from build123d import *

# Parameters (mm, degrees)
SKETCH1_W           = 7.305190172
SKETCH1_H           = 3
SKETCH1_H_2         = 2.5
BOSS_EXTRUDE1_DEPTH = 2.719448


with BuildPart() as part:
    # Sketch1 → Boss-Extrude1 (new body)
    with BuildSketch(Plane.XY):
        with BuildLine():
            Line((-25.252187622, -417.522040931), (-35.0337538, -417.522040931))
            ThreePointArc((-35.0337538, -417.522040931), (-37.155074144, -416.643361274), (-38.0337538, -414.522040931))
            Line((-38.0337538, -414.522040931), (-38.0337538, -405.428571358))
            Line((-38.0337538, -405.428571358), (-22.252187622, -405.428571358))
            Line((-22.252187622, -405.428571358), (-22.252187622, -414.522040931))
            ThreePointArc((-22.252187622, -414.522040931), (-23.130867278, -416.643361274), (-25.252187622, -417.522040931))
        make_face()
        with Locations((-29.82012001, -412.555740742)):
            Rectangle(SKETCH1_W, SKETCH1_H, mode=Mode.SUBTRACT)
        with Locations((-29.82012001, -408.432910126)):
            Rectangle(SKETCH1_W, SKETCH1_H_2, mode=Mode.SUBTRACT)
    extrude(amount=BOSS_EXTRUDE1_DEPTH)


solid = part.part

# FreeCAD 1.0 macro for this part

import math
import FreeCAD as App
import Part
import Sketcher
Q = App.Units.Quantity

doc = App.newDocument("Part")
params = doc.addObject("Spreadsheet::Sheet", "Params")
for row, (alias, value) in enumerate([
    ("sketch1_radius", "3 mm"),
    ("sketch1_height", "3 mm"),
    ("sketch1_height2", "2.5 mm"),
    ("pad1_length", "2.719448 mm"),
], start=1):
    params.set(f"A{row}", alias)
    params.set(f"B{row}", "=" + value)
    params.setAlias(f"B{row}", alias)

body = doc.addObject("PartDesign::Body", "Body")

sketch1 = body.newObject("Sketcher::SketchObject", "Sketch")
sketch1.AttachmentSupport = (doc.getObject("XY_Plane"), [""])
sketch1.MapMode = "FlatFace"
sketch1.addGeometry([
    Part.LineSegment(App.Vector(-35, -417.5, 0), App.Vector(-25.3, -417.5, 0)),
    Part.ArcOfCircle(Part.Circle(App.Vector(-25.3, -414.5, 0), App.Vector(0, 0, 1), 3), math.radians(-90), math.radians(0)),
    Part.LineSegment(App.Vector(-22.3, -414.5, 0), App.Vector(-22.3, -405.4, 0)),
    Part.LineSegment(App.Vector(-22.3, -405.4, 0), App.Vector(-38, -405.4, 0)),
    Part.LineSegment(App.Vector(-38, -405.4, 0), App.Vector(-38, -414.5, 0)),
    Part.ArcOfCircle(Part.Circle(App.Vector(-35, -414.5, 0), App.Vector(0, 0, 1), 3), math.radians(180), math.radians(270)),
    Part.LineSegment(App.Vector(-33.5, -414.1, 0), App.Vector(-33.5, -411.1, 0)),
    Part.LineSegment(App.Vector(-33.5, -411.1, 0), App.Vector(-26.2, -411.1, 0)),
    Part.LineSegment(App.Vector(-26.2, -411.1, 0), App.Vector(-26.2, -414.1, 0)),
    Part.LineSegment(App.Vector(-26.2, -414.1, 0), App.Vector(-33.5, -414.1, 0)),
    Part.LineSegment(App.Vector(-33.5, -409.7, 0), App.Vector(-33.5, -407.2, 0)),
    Part.LineSegment(App.Vector(-33.5, -407.2, 0), App.Vector(-26.2, -407.2, 0)),
    Part.LineSegment(App.Vector(-26.2, -407.2, 0), App.Vector(-26.2, -409.7, 0)),
    Part.LineSegment(App.Vector(-26.2, -409.7, 0), App.Vector(-33.5, -409.7, 0)),
], False)
sketch1.addConstraint([
    Sketcher.Constraint("Tangent", 0, 2, 1, 1),
    Sketcher.Constraint("Tangent", 1, 2, 2, 1),
    Sketcher.Constraint("Coincident", 2, 2, 3, 1),
    Sketcher.Constraint("Coincident", 3, 2, 4, 1),
    Sketcher.Constraint("Tangent", 4, 2, 5, 1),
    Sketcher.Constraint("Tangent", 5, 2, 0, 1),
    Sketcher.Constraint("Coincident", 6, 2, 7, 1),
    Sketcher.Constraint("Coincident", 7, 2, 8, 1),
    Sketcher.Constraint("Coincident", 8, 2, 9, 1),
    Sketcher.Constraint("Coincident", 9, 2, 6, 1),
    Sketcher.Constraint("Coincident", 10, 2, 11, 1),
    Sketcher.Constraint("Coincident", 11, 2, 12, 1),
    Sketcher.Constraint("Coincident", 12, 2, 13, 1),
    Sketcher.Constraint("Coincident", 13, 2, 10, 1),
    Sketcher.Constraint("Horizontal", 0),
    Sketcher.Constraint("Vertical", 2),
    Sketcher.Constraint("Horizontal", 3),
    Sketcher.Constraint("Vertical", 4),
    Sketcher.Constraint("Vertical", 6),
    Sketcher.Constraint("Horizontal", 7),
    Sketcher.Constraint("Vertical", 8),
    Sketcher.Constraint("Horizontal", 9),
    Sketcher.Constraint("Vertical", 10),
    Sketcher.Constraint("Horizontal", 11),
    Sketcher.Constraint("Vertical", 12),
    Sketcher.Constraint("Horizontal", 13),
    Sketcher.Constraint("Equal", 1, 5),
    Sketcher.Constraint("Vertical", 9, 2, 10, 2),
    Sketcher.Constraint("Vertical", 8, 2, 11, 2),
    Sketcher.Constraint("Radius", 1, Q("3 mm")),
    Sketcher.Constraint("DistanceY", 6, 1, 6, 2, Q("3 mm")),
    Sketcher.Constraint("DistanceY", 10, 1, 10, 2, Q("2.5 mm")),
    Sketcher.Constraint("DistanceX", 7, 1, 7, 2, Q("7.30519 mm")),
    Sketcher.Constraint("DistanceY", 2, 1, 2, 2, Q("9.09347 mm")),
    Sketcher.Constraint("DistanceY", 5, 3, 6, 2, Q("3.4663 mm")),
    Sketcher.Constraint("DistanceX", 0, 1, 0, 2, Q("9.781566 mm")),
    Sketcher.Constraint("DistanceY", 1, 3, -1, 1, Q("414.522041 mm")),
    Sketcher.Constraint("DistanceY", 10, 2, -1, 1, Q("407.18291 mm")),
    Sketcher.Constraint("DistanceX", 5, 3, 6, 2, Q("1.561039 mm")),
    Sketcher.Constraint("DistanceX", 1, 3, -1, 1, Q("25.252188 mm")),
])
sketch1.setExpression("Constraints[29]", "Params.sketch1_radius")
sketch1.setExpression("Constraints[30]", "Params.sketch1_height")
sketch1.setExpression("Constraints[31]", "Params.sketch1_height2")
pad1 = body.newObject("PartDesign::Pad", "Pad")
pad1.Profile = sketch1
pad1.setExpression("Length", "Params.pad1_length")

doc.recompute()
